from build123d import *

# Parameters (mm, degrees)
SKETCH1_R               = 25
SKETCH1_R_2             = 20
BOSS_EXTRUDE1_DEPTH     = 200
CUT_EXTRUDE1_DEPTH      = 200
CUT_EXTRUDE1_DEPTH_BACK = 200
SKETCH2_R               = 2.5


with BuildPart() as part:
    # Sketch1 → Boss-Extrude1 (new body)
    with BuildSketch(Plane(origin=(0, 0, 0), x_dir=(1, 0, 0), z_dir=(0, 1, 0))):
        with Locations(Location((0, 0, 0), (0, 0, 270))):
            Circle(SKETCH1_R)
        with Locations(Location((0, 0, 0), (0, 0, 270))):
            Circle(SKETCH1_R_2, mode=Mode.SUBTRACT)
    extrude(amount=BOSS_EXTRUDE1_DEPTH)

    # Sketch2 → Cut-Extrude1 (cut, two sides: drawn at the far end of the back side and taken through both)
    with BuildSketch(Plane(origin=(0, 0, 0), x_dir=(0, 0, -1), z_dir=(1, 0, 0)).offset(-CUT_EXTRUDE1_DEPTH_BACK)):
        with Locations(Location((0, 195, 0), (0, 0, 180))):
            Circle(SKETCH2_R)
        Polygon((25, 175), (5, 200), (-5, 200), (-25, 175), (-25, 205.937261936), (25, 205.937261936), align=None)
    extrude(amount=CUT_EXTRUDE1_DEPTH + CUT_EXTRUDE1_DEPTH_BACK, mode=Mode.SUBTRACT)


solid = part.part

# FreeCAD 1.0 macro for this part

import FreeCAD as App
import Part
import Sketcher


def add_polygon(sketch, points):
    """Adds a closed chain of lines whose ends are joined by coincident constraints."""
    first, n = sketch.GeometryCount, len(points)
    for a, b in zip(points, points[1:] + points[:1]):
        sketch.addGeometry(Part.LineSegment(App.Vector(*a, 0), App.Vector(*b, 0)), False)
    for i in range(n):
        sketch.addConstraint(Sketcher.Constraint("Coincident", first + i, 2, first + (i + 1) % n, 1))

doc = App.newDocument("Part")
body = doc.addObject("PartDesign::Body", "Body")

# Sketch on XZ plane
sketch1 = doc.addObject("Sketcher::SketchObject", "Sketch")
body.addObject(sketch1)
sketch1.AttachmentSupport = (doc.XZ_Plane, [""])
sketch1.MapMode = "FlatFace"
sketch1.addGeometry(Part.Circle(App.Vector(0, 0, 0), App.Vector(0, 0, 1), 25), False)
sketch1.addGeometry(Part.Circle(App.Vector(0, 0, 0), App.Vector(0, 0, 1), 20), False)
sketch1.addConstraint(Sketcher.Constraint("Coincident", 0, 3, -1, 1))
sketch1.addConstraint(Sketcher.Constraint("Coincident", 1, 3, -1, 1))
sketch1.addConstraint(Sketcher.Constraint("Diameter", 0, 50.0))
sketch1.addConstraint(Sketcher.Constraint("Diameter", 1, 40.0))
pad1 = doc.addObject("PartDesign::Pad", "Pad")
body.addObject(pad1)
pad1.Profile = sketch1
pad1.Length = 200
pad1.Reversed = True

# Sketch on YZ plane
sketch2 = doc.addObject("Sketcher::SketchObject", "Sketch001")
body.addObject(sketch2)
sketch2.AttachmentSupport = (doc.YZ_Plane, [""])
sketch2.MapMode = "FlatFace"
sketch2.addGeometry(Part.Circle(App.Vector(195, 0, 0), App.Vector(0, 0, 1), 2.5), False)  # 0
add_polygon(sketch2, [(200, -5), (175, -25), (205.9, -25), (205.9, 25), (175, 25), (200, 5)])  # lines 1-6
sketch2.addConstraint(Sketcher.Constraint("Horizontal", 2))
sketch2.addConstraint(Sketcher.Constraint("Vertical", 3))
sketch2.addConstraint(Sketcher.Constraint("Horizontal", 4))
sketch2.addConstraint(Sketcher.Constraint("Vertical", 6))
sketch2.addConstraint(Sketcher.Constraint("Symmetric", 1, 2, 4, 2, -1))
sketch2.addConstraint(Sketcher.Constraint("PointOnObject", 0, 3, -1))
sketch2.addConstraint(Sketcher.Constraint("Equal", 1, 5))
sketch2.addConstraint(Sketcher.Constraint("Diameter", 0, 5.0))
sketch2.addConstraint(Sketcher.Constraint("DistanceY", 3, 1, 3, 2, 50.0))
sketch2.addConstraint(Sketcher.Constraint("DistanceY", 6, 2, 6, 1, 10.0))
sketch2.addConstraint(Sketcher.Constraint("DistanceX", -1, 1, 0, 3, 195.0))
sketch2.addConstraint(Sketcher.Constraint("DistanceX", -1, 1, 1, 2, 175.0))
sketch2.addConstraint(Sketcher.Constraint("DistanceX", -1, 1, 5, 2, 200.0))
sketch2.addConstraint(Sketcher.Constraint("DistanceX", 2, 1, 2, 2, 30.937262))
pocket1 = doc.addObject("PartDesign::Pocket", "Pocket")
body.addObject(pocket1)
pocket1.Profile = sketch2
pocket1.Type = "ThroughAll"
pocket1.Midplane = True

doc.recompute()
